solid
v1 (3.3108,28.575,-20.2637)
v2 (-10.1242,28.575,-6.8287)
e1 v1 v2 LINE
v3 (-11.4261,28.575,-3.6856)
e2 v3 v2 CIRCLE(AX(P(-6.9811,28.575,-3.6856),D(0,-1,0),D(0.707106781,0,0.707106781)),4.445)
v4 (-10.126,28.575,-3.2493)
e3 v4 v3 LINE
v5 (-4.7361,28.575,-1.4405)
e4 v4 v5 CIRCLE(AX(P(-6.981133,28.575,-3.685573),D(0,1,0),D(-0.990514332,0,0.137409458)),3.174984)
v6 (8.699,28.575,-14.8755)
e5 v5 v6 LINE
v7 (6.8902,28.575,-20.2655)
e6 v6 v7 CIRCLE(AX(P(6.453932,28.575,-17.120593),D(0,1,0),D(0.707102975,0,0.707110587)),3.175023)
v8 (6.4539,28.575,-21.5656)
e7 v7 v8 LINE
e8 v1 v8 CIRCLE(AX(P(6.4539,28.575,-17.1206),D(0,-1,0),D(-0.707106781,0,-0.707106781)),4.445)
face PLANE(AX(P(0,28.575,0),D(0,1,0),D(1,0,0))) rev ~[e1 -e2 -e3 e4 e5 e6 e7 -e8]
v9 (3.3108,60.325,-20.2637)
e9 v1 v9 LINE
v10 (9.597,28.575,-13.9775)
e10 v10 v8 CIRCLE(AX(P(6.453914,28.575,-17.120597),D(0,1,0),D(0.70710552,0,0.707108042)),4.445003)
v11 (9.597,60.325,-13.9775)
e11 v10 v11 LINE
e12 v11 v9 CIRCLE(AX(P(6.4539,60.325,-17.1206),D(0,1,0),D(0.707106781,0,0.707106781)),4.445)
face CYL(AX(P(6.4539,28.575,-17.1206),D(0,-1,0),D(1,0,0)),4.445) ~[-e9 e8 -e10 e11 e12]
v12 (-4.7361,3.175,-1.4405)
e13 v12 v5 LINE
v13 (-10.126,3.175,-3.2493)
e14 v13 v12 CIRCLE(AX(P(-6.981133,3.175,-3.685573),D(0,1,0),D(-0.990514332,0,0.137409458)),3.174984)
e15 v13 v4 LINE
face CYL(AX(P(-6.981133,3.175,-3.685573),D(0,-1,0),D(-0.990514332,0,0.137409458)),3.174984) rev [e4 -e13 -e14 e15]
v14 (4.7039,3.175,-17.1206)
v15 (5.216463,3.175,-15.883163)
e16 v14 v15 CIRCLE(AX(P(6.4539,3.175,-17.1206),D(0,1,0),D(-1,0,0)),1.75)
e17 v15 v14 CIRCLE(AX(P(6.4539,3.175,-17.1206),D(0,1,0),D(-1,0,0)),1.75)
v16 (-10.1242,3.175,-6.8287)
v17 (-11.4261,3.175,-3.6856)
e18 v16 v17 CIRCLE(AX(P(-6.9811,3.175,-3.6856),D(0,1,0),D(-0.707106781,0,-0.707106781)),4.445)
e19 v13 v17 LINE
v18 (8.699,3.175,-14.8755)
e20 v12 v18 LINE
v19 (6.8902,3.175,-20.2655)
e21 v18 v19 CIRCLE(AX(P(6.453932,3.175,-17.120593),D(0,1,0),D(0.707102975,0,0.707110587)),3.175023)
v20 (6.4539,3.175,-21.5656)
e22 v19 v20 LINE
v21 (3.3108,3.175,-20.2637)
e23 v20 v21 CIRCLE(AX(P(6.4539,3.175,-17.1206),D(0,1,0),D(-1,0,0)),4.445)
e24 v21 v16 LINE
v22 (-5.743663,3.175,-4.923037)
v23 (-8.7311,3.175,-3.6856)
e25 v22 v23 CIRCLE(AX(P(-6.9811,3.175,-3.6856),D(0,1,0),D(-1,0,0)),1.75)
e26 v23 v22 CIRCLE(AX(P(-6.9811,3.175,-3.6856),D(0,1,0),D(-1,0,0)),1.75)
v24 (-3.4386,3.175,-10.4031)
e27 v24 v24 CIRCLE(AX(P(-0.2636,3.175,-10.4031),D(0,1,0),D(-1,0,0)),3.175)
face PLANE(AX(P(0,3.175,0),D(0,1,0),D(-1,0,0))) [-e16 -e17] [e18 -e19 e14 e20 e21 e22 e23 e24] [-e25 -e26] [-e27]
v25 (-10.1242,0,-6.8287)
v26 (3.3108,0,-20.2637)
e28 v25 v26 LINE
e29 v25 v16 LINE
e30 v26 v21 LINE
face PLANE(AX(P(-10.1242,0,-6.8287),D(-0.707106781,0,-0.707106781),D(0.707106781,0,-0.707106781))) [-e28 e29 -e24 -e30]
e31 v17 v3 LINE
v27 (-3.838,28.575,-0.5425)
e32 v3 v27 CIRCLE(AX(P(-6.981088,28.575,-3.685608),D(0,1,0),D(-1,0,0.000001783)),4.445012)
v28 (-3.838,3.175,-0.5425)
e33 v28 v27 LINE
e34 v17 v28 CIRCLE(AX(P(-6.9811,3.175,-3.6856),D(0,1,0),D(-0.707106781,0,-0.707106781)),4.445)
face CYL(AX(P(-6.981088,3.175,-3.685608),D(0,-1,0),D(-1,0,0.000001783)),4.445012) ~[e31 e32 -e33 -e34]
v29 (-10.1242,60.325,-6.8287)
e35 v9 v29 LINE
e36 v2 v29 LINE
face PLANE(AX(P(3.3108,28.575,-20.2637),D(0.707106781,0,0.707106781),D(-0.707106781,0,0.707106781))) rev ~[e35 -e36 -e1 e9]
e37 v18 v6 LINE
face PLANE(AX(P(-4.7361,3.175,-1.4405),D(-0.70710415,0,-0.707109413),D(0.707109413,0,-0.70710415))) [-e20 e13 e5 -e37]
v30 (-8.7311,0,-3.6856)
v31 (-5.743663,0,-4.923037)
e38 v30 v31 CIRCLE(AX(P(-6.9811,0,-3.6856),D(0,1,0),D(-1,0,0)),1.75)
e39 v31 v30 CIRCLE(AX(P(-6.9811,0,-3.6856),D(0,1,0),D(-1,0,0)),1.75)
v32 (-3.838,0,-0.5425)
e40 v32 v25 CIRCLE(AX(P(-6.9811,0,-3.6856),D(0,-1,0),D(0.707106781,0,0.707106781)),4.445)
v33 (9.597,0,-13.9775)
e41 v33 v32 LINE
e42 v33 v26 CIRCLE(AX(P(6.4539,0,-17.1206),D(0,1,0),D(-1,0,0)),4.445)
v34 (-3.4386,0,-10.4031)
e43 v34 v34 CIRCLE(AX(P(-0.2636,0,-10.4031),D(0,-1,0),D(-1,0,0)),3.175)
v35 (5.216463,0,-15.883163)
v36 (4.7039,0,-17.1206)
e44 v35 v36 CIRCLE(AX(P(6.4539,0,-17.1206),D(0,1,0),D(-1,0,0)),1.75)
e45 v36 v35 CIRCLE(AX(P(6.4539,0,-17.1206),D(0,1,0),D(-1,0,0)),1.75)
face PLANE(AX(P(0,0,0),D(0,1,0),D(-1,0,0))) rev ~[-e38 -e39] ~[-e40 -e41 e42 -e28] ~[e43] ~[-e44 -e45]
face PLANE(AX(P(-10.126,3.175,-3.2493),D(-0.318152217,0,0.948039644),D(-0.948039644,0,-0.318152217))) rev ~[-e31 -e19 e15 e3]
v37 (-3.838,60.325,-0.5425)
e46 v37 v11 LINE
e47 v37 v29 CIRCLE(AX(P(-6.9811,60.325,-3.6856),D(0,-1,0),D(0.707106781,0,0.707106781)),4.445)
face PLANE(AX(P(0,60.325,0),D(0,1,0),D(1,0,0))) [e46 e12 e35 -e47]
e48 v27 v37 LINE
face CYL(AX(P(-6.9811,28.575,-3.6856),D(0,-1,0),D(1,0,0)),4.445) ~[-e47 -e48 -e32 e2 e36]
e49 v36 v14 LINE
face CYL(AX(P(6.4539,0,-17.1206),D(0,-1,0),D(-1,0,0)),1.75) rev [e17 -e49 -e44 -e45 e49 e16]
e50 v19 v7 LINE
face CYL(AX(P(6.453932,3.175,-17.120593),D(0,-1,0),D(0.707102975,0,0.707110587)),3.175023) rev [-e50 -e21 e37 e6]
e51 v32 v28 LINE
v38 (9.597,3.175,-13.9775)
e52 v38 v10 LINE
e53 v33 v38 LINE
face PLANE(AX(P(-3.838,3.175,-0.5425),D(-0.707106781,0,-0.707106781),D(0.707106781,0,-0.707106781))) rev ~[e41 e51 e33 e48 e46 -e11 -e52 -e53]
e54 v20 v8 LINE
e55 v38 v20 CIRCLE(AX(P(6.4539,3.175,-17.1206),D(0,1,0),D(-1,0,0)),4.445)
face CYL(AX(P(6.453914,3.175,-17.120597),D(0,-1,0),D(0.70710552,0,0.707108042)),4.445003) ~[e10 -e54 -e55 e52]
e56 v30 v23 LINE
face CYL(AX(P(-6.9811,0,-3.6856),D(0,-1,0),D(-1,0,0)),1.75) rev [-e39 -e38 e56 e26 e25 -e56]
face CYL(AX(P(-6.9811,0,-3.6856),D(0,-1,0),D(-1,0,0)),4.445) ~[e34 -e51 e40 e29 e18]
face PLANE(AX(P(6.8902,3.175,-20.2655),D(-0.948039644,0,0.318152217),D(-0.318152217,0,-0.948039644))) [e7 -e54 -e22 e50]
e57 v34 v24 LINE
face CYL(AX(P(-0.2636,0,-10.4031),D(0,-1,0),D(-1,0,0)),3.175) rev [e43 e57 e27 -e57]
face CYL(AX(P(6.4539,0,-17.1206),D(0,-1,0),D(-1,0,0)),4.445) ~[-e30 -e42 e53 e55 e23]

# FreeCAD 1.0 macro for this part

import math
import FreeCAD as App
import Part
import Sketcher

V = App.Vector
Q = App.Units.Quantity

doc = App.newDocument("Part")
body = doc.addObject("PartDesign::Body", "Body")

sketch1 = body.newObject("Sketcher::SketchObject", "Sketch")
sketch1.AttachmentSupport = (doc.getObject("XZ_Plane"), [""])
sketch1.MapMode = "FlatFace"
sketch1.addGeometry(Part.ArcOfCircle(Part.Circle(V(-7, -3.7, 0), V(0, 0, 1), 4.4), math.radians(45), math.radians(225)), False)
sketch1.addGeometry(Part.LineSegment(V(-3.8, -0.5, 0), V(9.6, -14, 0)), False)
sketch1.addGeometry(Part.ArcOfCircle(Part.Circle(V(6.5, -17.1, 0), V(0, 0, 1), 4.4), math.radians(-135), math.radians(45)), False)
sketch1.addGeometry(Part.LineSegment(V(3.3, -20.3, 0), V(-10.1, -6.8, 0)), False)
sketch1.addGeometry(Part.Circle(V(-0.3, -10.4, 0), V(0, 0, 1), 3.2), False)
sketch1.addGeometry(Part.Circle(V(-7, -3.7, 0), V(0, 0, 1), 1.8), False)
sketch1.addGeometry(Part.Circle(V(6.5, -17.1, 0), V(0, 0, 1), 1.8), False)
sketch1.addConstraint(Sketcher.Constraint("Tangent", 0, 1, 1, 1))
sketch1.addConstraint(Sketcher.Constraint("Tangent", 1, 2, 2, 2))
sketch1.addConstraint(Sketcher.Constraint("Tangent", 2, 1, 3, 1))
sketch1.addConstraint(Sketcher.Constraint("Tangent", 3, 2, 0, 2))
sketch1.addConstraint(Sketcher.Constraint("Coincident", 5, 3, 0, 3))
sketch1.addConstraint(Sketcher.Constraint("Coincident", 6, 3, 2, 3))
sketch1.addConstraint(Sketcher.Constraint("Equal", 0, 2))
sketch1.addConstraint(Sketcher.Constraint("Equal", 5, 6))
sketch1.addConstraint(Sketcher.Constraint("Radius", 0, Q("0.175 in")))
sketch1.addConstraint(Sketcher.Constraint("Diameter", 5, Q("0.1378 in")))
sketch1.addConstraint(Sketcher.Constraint("Diameter", 4, Q("0.25 in")))
sketch1.addConstraint(Sketcher.Constraint("Angle", 1, Q("-45 deg")))
sketch1.addConstraint(Sketcher.Constraint("DistanceY", 0, 3, -1, 1, Q("0.1451 in")))
sketch1.addConstraint(Sketcher.Constraint("DistanceX", -1, 1, 2, 3, Q("0.2541 in")))
sketch1.addConstraint(Sketcher.Constraint("DistanceX", 0, 1, -1, 1, Q("0.1511 in")))
sketch1.addConstraint(Sketcher.Constraint("DistanceX", 4, 3, -1, 1, Q("0.2636 mm")))
sketch1.addConstraint(Sketcher.Constraint("DistanceY", 4, 3, -1, 1, Q("10.403 mm")))
pad1 = body.newObject("PartDesign::Pad", "Pad")
pad1.Profile = sketch1
pad1.Length = Q("0.125 in")
pad1.Reversed = True

sketch2 = body.newObject("Sketcher::SketchObject", "Sketch001")
sketch2.AttachmentSupport = (doc.getObject("XZ_Plane"), [""])
sketch2.MapMode = "FlatFace"
sketch2.AttachmentOffset = App.Placement(V(0, 0, -0.125 * 25.4), App.Rotation())
sketch2.addGeometry(Part.LineSegment(V(-10.1, -3.2, 0), V(-11.4, -3.7, 0)), False)
sketch2.addGeometry(Part.ArcOfCircle(Part.Circle(V(-7, -3.7, 0), V(0, 0, 1), 4.4), math.radians(45), math.radians(180)), False)
sketch2.addGeometry(Part.LineSegment(V(-3.8, -0.5, 0), V(9.6, -14, 0)), False)
sketch2.addGeometry(Part.ArcOfCircle(Part.Circle(V(6.5, -17.1, 0), V(0, 0, 1), 4.4), math.radians(-90), math.radians(45)), False)
sketch2.addGeometry(Part.LineSegment(V(6.5, -21.6, 0), V(6.9, -20.3, 0)), False)
sketch2.addGeometry(Part.ArcOfCircle(Part.Circle(V(6.5, -17.1, 0), V(0, 0, 1), 3.2), math.radians(-82), math.radians(45)), False)
sketch2.addGeometry(Part.LineSegment(V(8.7, -14.9, 0), V(-4.7, -1.4, 0)), False)
sketch2.addGeometry(Part.ArcOfCircle(Part.Circle(V(-7, -3.7, 0), V(0, 0, 1), 3.2), math.radians(45), math.radians(172)), False)
sketch2.addConstraint(Sketcher.Constraint("Coincident", 0, 2, 1, 2))
sketch2.addConstraint(Sketcher.Constraint("Tangent", 1, 1, 2, 1))
sketch2.addConstraint(Sketcher.Constraint("Tangent", 2, 2, 3, 2))
sketch2.addConstraint(Sketcher.Constraint("Coincident", 3, 1, 4, 1))
sketch2.addConstraint(Sketcher.Constraint("Coincident", 4, 2, 5, 1))
sketch2.addConstraint(Sketcher.Constraint("Tangent", 5, 2, 6, 1))
sketch2.addConstraint(Sketcher.Constraint("Tangent", 6, 2, 7, 1))
sketch2.addConstraint(Sketcher.Constraint("Coincident", 7, 2, 0, 1))
sketch2.addConstraint(Sketcher.Constraint("Coincident", 5, 3, 3, 3))
sketch2.addConstraint(Sketcher.Constraint("Coincident", 7, 3, 1, 3))
sketch2.addConstraint(Sketcher.Constraint("Equal", 1, 3))
sketch2.addConstraint(Sketcher.Constraint("Equal", 5, 7))
sketch2.addConstraint(Sketcher.Constraint("Horizontal", 7, 3, 0, 2))
sketch2.addConstraint(Sketcher.Constraint("Vertical", 5, 3, 3, 1))
sketch2.addConstraint(Sketcher.Constraint("Equal", 0, 4))
sketch2.addConstraint(Sketcher.Constraint("Angle", 2, Q("-45 deg")))
sketch2.addConstraint(Sketcher.Constraint("Radius", 1, Q("0.175 in")))
sketch2.addConstraint(Sketcher.Constraint("Radius", 5, Q("0.125 in")))
sketch2.addConstraint(Sketcher.Constraint("Distance", 0, Q("0.054 in")))
sketch2.addConstraint(Sketcher.Constraint("DistanceY", 1, 3, -1, 1, Q("0.1451 in")))
sketch2.addConstraint(Sketcher.Constraint("DistanceX", -1, 1, 3, 3, Q("0.2541 in")))
sketch2.addConstraint(Sketcher.Constraint("DistanceX", 1, 1, -1, 1, Q("0.1511 in")))
pad2 = body.newObject("PartDesign::Pad", "Pad001")
pad2.Profile = sketch2
pad2.Length = Q("1 in")
pad2.Reversed = True

sketch3 = body.newObject("Sketcher::SketchObject", "Sketch002")
sketch3.AttachmentSupport = (doc.getObject("XZ_Plane"), [""])
sketch3.MapMode = "FlatFace"
sketch3.AttachmentOffset = App.Placement(V(0, 0, -1.125 * 25.4), App.Rotation())
sketch3.addGeometry(Part.LineSegment(V(-3.8, -0.5, 0), V(9.6, -14, 0)), False)
sketch3.addGeometry(Part.ArcOfCircle(Part.Circle(V(6.5, -17.1, 0), V(0, 0, 1), 4.4), math.radians(-135), math.radians(45)), False)
sketch3.addGeometry(Part.LineSegment(V(3.3, -20.3, 0), V(-10.1, -6.8, 0)), False)
sketch3.addGeometry(Part.ArcOfCircle(Part.Circle(V(-7, -3.7, 0), V(0, 0, 1), 4.4), math.radians(45), math.radians(225)), False)
sketch3.addConstraint(Sketcher.Constraint("Tangent", 0, 2, 1, 2))
sketch3.addConstraint(Sketcher.Constraint("Tangent", 1, 1, 2, 1))
sketch3.addConstraint(Sketcher.Constraint("Tangent", 2, 2, 3, 2))
sketch3.addConstraint(Sketcher.Constraint("Tangent", 3, 1, 0, 1))
sketch3.addConstraint(Sketcher.Constraint("Equal", 1, 3))
sketch3.addConstraint(Sketcher.Constraint("Angle", 0, Q("-45 deg")))
sketch3.addConstraint(Sketcher.Constraint("Radius", 1, Q("0.175 in")))
sketch3.addConstraint(Sketcher.Constraint("DistanceX", -1, 1, 1, 3, Q("0.2541 in")))
sketch3.addConstraint(Sketcher.Constraint("DistanceY", 3, 3, -1, 1, Q("0.1451 in")))
sketch3.addConstraint(Sketcher.Constraint("DistanceY", 0, 2, -1, 1, Q("0.5503 in")))
pad3 = body.newObject("PartDesign::Pad", "Pad002")
pad3.Profile = sketch3
pad3.Length = Q("1.25 in")
pad3.Reversed = True

doc.recompute()
